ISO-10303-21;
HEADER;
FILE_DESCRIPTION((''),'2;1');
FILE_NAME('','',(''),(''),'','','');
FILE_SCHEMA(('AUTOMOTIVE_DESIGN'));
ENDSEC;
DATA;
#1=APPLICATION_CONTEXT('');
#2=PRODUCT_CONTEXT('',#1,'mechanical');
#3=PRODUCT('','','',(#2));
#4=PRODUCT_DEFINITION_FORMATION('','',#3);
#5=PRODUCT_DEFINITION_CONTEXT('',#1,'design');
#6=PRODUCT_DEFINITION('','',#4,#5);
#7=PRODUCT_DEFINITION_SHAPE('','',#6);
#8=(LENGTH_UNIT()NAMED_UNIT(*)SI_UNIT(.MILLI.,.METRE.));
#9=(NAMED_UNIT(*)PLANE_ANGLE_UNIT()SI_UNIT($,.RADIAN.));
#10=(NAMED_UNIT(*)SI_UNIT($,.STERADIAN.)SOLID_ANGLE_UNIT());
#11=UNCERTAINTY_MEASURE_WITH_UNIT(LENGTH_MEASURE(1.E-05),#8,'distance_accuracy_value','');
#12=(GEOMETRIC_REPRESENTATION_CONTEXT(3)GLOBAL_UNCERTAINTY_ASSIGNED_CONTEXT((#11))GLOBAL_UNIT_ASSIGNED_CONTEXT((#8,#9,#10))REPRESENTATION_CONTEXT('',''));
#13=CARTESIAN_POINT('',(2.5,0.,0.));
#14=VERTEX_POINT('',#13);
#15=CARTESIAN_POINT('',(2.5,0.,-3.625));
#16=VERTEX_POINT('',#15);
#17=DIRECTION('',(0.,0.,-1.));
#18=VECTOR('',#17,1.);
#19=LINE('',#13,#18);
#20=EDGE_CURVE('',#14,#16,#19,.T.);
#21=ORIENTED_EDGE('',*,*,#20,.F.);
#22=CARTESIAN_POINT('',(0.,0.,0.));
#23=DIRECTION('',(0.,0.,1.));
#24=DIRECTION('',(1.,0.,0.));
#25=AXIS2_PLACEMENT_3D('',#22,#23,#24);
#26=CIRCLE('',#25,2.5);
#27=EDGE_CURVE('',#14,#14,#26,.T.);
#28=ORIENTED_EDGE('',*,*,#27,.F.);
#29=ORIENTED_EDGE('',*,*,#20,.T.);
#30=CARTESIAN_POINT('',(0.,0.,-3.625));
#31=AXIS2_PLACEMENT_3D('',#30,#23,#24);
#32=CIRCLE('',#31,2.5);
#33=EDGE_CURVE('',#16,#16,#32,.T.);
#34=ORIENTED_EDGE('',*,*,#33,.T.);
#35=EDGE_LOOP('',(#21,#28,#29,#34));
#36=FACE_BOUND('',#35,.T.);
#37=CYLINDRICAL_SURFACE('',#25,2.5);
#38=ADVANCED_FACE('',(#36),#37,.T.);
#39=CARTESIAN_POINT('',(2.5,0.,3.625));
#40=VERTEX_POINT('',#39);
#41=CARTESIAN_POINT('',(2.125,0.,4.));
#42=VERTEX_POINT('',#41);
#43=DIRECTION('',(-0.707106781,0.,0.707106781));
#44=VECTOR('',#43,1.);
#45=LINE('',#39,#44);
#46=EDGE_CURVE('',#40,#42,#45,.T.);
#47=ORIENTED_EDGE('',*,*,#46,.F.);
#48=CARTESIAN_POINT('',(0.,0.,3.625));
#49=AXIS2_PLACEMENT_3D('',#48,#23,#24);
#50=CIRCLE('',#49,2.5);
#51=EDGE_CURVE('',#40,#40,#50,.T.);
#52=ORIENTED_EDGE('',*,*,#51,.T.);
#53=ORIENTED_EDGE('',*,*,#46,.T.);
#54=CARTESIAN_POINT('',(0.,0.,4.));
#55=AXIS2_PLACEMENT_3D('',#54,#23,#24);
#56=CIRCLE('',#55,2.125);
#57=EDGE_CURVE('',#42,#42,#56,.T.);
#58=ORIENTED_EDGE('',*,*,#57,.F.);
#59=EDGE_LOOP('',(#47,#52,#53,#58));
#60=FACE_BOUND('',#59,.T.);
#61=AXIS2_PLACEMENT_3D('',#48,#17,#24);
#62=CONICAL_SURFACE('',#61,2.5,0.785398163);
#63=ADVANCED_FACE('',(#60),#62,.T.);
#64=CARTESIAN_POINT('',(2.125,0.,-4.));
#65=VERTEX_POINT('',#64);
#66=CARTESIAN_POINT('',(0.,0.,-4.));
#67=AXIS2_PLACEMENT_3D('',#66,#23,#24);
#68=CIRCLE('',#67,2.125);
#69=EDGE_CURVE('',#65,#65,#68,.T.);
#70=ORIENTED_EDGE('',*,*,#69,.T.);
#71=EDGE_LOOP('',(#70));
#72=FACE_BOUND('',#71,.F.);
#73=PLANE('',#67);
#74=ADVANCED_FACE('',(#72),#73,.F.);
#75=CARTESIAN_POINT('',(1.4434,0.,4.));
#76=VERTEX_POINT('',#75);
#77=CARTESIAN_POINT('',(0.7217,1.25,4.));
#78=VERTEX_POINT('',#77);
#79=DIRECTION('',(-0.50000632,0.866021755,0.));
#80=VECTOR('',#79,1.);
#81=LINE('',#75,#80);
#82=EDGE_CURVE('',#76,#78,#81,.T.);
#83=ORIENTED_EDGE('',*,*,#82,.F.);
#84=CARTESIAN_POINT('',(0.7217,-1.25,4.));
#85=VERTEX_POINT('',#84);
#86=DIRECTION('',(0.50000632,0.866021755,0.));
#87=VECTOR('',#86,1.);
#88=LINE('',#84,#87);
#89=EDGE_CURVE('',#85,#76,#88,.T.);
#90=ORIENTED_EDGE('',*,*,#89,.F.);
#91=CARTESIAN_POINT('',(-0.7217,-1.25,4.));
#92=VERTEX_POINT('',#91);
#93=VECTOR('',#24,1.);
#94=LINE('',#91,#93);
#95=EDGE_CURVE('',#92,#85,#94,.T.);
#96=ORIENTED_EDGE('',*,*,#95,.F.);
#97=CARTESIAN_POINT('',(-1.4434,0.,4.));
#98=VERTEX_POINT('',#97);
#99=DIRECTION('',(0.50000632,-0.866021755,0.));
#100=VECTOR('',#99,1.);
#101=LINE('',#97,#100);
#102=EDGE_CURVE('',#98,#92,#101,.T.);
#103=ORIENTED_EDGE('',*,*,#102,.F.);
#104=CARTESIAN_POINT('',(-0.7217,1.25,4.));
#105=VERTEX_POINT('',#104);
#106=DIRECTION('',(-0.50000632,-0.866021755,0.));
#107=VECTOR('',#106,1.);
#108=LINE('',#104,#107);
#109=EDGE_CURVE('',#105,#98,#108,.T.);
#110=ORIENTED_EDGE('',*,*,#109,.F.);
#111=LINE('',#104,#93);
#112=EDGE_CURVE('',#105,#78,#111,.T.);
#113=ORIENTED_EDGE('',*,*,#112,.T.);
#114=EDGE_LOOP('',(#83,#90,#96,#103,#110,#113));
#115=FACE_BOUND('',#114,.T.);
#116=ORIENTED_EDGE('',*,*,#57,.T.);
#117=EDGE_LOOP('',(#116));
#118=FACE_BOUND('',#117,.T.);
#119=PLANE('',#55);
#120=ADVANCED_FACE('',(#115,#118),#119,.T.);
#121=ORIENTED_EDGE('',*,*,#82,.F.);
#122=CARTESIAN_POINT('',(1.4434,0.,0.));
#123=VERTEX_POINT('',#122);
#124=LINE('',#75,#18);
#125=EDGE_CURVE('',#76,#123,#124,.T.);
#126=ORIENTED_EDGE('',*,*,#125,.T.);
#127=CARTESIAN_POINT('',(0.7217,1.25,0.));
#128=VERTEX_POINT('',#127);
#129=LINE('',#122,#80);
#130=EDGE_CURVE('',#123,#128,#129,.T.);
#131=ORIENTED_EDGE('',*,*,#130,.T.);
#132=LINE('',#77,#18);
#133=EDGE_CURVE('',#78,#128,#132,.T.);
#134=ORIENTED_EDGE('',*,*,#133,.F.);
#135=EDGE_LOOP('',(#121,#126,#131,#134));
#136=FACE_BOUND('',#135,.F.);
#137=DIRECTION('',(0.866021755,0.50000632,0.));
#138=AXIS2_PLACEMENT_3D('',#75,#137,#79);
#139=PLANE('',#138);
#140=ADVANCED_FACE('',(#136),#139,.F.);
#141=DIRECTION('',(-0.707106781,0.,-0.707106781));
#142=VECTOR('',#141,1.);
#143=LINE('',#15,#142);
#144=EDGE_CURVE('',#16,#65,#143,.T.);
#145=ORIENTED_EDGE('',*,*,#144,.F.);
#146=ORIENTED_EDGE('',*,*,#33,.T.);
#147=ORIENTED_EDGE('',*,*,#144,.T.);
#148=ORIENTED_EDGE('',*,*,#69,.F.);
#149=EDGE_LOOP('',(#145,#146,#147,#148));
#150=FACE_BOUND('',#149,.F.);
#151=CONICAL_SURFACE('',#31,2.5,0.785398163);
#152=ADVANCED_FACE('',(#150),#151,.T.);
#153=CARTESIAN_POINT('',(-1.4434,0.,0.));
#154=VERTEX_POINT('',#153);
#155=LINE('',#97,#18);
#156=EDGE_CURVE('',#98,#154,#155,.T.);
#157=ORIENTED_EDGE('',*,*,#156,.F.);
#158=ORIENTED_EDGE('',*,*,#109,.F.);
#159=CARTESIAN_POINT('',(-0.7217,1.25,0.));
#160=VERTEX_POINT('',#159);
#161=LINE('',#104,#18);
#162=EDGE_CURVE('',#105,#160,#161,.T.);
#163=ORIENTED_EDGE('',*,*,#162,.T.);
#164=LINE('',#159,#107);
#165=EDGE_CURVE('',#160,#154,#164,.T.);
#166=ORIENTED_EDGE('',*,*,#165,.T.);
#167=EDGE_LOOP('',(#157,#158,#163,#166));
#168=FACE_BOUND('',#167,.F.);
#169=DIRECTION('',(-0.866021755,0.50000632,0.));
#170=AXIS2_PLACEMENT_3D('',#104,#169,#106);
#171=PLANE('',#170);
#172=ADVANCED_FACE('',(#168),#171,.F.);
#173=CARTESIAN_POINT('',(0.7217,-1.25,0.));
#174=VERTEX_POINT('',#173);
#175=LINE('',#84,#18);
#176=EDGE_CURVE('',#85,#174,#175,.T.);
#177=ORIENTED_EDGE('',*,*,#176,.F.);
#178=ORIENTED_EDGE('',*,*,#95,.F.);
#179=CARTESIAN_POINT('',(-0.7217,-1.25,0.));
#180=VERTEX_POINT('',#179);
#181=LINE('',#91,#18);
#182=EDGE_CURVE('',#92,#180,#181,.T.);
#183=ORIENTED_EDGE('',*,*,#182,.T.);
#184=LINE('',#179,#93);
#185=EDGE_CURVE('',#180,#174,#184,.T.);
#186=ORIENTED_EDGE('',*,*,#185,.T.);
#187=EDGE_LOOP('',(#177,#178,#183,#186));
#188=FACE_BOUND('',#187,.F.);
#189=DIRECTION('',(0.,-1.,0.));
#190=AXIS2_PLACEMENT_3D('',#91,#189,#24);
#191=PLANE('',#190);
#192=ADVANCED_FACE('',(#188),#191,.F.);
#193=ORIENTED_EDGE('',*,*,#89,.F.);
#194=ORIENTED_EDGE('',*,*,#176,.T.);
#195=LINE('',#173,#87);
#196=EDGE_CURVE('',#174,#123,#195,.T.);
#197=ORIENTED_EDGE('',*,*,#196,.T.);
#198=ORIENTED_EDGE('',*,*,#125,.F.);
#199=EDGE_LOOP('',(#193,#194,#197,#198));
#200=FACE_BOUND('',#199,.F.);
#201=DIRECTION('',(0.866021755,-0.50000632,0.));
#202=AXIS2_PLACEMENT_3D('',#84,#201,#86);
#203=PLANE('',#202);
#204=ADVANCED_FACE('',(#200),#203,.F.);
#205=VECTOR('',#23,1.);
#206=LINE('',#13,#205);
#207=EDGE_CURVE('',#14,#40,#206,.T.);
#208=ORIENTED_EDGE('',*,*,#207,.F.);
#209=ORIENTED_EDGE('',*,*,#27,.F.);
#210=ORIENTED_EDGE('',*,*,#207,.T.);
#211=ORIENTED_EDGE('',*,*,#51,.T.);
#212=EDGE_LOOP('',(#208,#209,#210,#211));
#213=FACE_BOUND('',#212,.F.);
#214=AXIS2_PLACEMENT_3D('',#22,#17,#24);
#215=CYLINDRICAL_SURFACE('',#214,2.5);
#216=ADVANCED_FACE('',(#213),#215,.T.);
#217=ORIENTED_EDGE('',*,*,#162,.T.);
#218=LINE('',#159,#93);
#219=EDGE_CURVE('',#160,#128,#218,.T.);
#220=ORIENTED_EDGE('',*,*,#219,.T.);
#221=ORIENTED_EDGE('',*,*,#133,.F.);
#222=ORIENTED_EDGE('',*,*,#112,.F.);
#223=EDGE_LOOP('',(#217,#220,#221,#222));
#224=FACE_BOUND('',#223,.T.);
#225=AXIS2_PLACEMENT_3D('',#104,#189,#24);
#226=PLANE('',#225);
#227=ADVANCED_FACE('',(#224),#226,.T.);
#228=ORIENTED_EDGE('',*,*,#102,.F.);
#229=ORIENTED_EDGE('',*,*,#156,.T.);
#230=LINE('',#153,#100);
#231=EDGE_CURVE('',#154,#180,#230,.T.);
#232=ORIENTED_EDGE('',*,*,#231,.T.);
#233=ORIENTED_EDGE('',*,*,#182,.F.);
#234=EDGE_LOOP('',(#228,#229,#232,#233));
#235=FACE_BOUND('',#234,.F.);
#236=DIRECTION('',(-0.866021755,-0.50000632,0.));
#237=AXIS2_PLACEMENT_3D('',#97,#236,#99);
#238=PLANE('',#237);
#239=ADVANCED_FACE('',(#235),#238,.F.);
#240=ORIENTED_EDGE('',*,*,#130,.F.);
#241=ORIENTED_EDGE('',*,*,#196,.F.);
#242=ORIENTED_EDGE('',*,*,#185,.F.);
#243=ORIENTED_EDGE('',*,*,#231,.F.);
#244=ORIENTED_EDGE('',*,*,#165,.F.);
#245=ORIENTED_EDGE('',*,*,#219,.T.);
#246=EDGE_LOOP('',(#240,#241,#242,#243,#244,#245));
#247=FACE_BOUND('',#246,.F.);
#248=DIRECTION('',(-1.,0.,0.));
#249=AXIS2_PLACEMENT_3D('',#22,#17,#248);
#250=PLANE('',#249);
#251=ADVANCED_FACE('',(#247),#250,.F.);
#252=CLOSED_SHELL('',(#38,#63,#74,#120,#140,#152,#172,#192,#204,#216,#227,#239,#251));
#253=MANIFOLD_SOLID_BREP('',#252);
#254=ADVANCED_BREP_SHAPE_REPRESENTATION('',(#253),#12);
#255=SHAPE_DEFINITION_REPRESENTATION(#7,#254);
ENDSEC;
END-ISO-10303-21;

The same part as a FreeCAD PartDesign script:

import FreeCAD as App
import Part
import Sketcher
from FreeCAD import Vector
Q = App.Units.Quantity


def edges_at(feature, points):
    """Names of the edges that pass closest to the given points."""
    edges = feature.Shape.Edges
    near = lambda p: min(range(len(edges)), key=lambda i: edges[i].distToShape(Part.Vertex(*p))[0])
    return sorted({f"Edge{near(p) + 1}" for p in points})


def add_polygon(sketch, points):
    """Adds a closed chain of lines whose ends are joined by coincident constraints."""
    first, n = sketch.GeometryCount, len(points)
    for a, b in zip(points, points[1:] + points[:1]):
        sketch.addGeometry(Part.LineSegment(App.Vector(*a, 0), App.Vector(*b, 0)), False)
    for i in range(n):
        sketch.addConstraint(Sketcher.Constraint("Coincident", first + i, 2, first + (i + 1) % n, 1))

doc = App.newDocument("Part")
params = doc.addObject("Spreadsheet::Sheet", "Params")
for row, (alias, value) in enumerate([
    ("sketch1_diameter", "5 mm"),
    ("pad1_length", "8 mm"),
    ("chamfer_size", "0.375 mm"),
    ("pocket1_length", "4 mm"),
], start=1):
    params.set(f"A{row}", alias)
    params.set(f"B{row}", "=" + value)
    params.setAlias(f"B{row}", alias)

body = doc.addObject("PartDesign::Body", "Body")

# Sketch on XY plane
sketch1 = doc.addObject("Sketcher::SketchObject", "Sketch")
body.addObject(sketch1)
sketch1.AttachmentSupport = (doc.XY_Plane, [""])
sketch1.MapMode = "FlatFace"
sketch1.addGeometry(Part.Circle(Vector(0, 0, 0), Vector(0, 0, 1), 2.5), False)
sketch1.addConstraint([
    Sketcher.Constraint("Coincident", 0, 3, -1, 1),
    Sketcher.Constraint("Diameter", 0, Q("5 mm")),
])
sketch1.setExpression("Constraints[1]", "Params.sketch1_diameter")
pad1 = doc.addObject("PartDesign::Pad", "Pad")
body.addObject(pad1)
pad1.Profile = sketch1
pad1.setExpression("Length", "Params.pad1_length")
pad1.Midplane = True
doc.recompute()

chamfer = doc.addObject("PartDesign::Chamfer", "Chamfer")
body.addObject(chamfer)
chamfer.Base = (pad1, edges_at(pad1, [(-2.5, 0, -4), (-2.5, 0, 4)]))
chamfer.setExpression("Size", "Params.chamfer_size")

# Sketch on XY plane
sketch2 = doc.addObject("Sketcher::SketchObject", "Sketch001")
body.addObject(sketch2)
sketch2.AttachmentSupport = (doc.XY_Plane, [""])
sketch2.MapMode = "FlatFace"
sketch2.AttachmentOffset = App.Placement(Vector(0, 0, 4), App.Rotation())
add_polygon(sketch2, [(0.7217, 1.25), (-0.7217, 1.25), (-1.4434, 0), (-0.7217, -1.25), (0.7217, -1.25), (1.4434, 0)])  # lines 0-5
sketch2.addConstraint([
    Sketcher.Constraint("Horizontal", 0),
    Sketcher.Constraint("Horizontal", 3),
    Sketcher.Constraint("Symmetric", 0, 2, 3, 2, -1, 1),
    Sketcher.Constraint("Symmetric", 1, 2, 4, 2, -1, 1),
    Sketcher.Constraint("PointOnObject", 1, 2, -1),
    Sketcher.Constraint("Parallel", 2, 5),
    Sketcher.Constraint("Vertical", 0, 2, 2, 2),
    Sketcher.Constraint("Angle", 1, Q("-120.0004 deg")),
    Sketcher.Constraint("DistanceY", 2, 2, 0, 2, Q("2.5 mm")),
    Sketcher.Constraint("DistanceX", 0, 2, 0, 1, Q("1.4434 mm")),
])
pocket1 = doc.addObject("PartDesign::Pocket", "Pocket")
body.addObject(pocket1)
pocket1.Profile = sketch2
pocket1.setExpression("Length", "Params.pocket1_length")

doc.recompute()
